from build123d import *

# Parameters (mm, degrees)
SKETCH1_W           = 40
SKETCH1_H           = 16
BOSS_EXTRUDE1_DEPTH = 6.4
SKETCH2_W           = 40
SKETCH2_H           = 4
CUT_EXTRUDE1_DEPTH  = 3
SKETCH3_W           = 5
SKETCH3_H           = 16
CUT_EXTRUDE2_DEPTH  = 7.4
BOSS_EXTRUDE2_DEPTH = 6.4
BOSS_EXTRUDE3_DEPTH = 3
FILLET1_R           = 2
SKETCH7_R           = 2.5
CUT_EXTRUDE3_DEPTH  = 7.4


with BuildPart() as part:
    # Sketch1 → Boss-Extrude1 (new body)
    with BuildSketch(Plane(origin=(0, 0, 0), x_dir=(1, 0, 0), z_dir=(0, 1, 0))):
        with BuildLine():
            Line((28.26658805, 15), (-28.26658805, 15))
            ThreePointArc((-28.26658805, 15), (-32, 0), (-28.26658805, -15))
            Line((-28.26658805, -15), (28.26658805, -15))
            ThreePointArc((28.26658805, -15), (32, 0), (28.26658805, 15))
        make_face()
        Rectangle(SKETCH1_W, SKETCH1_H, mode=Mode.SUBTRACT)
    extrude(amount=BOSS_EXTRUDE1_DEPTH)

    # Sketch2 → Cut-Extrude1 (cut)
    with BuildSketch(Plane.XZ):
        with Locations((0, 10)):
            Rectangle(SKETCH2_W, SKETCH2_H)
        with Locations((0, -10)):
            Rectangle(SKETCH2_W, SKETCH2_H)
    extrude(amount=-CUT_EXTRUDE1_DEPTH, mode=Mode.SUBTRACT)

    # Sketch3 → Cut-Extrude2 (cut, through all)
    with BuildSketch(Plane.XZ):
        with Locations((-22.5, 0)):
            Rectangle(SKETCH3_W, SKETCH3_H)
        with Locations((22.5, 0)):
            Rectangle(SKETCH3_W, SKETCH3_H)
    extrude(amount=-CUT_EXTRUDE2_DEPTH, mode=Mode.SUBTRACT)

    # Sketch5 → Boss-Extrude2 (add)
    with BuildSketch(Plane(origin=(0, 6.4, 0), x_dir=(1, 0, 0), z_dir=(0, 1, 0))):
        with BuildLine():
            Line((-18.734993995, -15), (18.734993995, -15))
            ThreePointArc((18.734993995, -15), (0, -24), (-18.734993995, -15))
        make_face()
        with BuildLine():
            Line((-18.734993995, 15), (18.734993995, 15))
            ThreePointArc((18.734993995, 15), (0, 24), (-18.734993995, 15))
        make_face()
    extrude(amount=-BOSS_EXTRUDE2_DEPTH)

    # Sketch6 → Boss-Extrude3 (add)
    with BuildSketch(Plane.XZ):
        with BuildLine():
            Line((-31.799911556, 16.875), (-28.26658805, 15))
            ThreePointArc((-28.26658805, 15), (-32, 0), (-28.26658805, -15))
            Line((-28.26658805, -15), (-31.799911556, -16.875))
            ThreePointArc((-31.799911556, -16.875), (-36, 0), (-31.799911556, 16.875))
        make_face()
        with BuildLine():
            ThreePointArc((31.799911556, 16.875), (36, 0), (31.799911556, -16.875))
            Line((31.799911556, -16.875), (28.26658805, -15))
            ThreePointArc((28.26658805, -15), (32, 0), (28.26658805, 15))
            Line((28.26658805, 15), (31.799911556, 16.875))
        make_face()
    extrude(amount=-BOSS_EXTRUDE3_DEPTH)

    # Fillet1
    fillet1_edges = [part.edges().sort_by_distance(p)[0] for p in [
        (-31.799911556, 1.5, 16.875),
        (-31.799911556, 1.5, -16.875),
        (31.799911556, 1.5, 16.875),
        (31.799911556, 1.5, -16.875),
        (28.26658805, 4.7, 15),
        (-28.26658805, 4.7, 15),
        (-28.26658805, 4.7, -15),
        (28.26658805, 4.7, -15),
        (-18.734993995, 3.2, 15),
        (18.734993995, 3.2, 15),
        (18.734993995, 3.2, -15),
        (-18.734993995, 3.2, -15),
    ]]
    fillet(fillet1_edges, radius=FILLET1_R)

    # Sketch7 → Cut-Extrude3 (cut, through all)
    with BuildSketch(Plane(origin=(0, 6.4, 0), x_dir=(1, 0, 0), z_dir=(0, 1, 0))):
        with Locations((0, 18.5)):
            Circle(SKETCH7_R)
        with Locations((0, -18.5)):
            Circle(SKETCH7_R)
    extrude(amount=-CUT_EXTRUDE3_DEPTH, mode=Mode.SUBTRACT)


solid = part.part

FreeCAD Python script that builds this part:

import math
import FreeCAD as App
import Part
import Sketcher
from FreeCAD import Vector


def edges_at(feature, points):
    """Names of the edges that pass closest to the given points."""
    edges = feature.Shape.Edges
    near = lambda p: min(range(len(edges)), key=lambda i: edges[i].distToShape(Part.Vertex(*p))[0])
    return sorted({f"Edge{near(p) + 1}" for p in points})

doc = App.newDocument("Part")
body = doc.addObject("PartDesign::Body", "Body")

sketch1 = doc.addObject("Sketcher::SketchObject", "Sketch")
body.addObject(sketch1)
sketch1.AttachmentSupport = (doc.XZ_Plane, [""])
sketch1.MapMode = "FlatFace"
sketch1.addGeometry([
    Part.LineSegment(Vector(28.266588, -15, 0), Vector(-28.266588, -15, 0)),
    Part.ArcOfCircle(Part.Circle(Vector(0, 0, 0), Vector(0, 0, 1), 32), math.radians(152.046813), math.radians(207.953187)),
    Part.LineSegment(Vector(-28.266588, 15, 0), Vector(28.266588, 15, 0)),
    Part.ArcOfCircle(Part.Circle(Vector(0, 0, 0), Vector(0, 0, 1), 32), math.radians(-27.953187), math.radians(27.953187)),
    Part.LineSegment(Vector(20, 8, 0), Vector(-20, 8, 0)),
    Part.LineSegment(Vector(-20, 8, 0), Vector(-20, -8, 0)),
    Part.LineSegment(Vector(-20, -8, 0), Vector(20, -8, 0)),
    Part.LineSegment(Vector(20, -8, 0), Vector(20, 8, 0)),
], False)
sketch1.addConstraint([
    Sketcher.Constraint("Coincident", 0, 2, 1, 2),
    Sketcher.Constraint("Coincident", 1, 1, 2, 1),
    Sketcher.Constraint("Coincident", 2, 2, 3, 2),
    Sketcher.Constraint("Coincident", 3, 1, 0, 1),
    Sketcher.Constraint("Coincident", 4, 2, 5, 1),
    Sketcher.Constraint("Coincident", 5, 2, 6, 1),
    Sketcher.Constraint("Coincident", 6, 2, 7, 1),
    Sketcher.Constraint("Coincident", 7, 2, 4, 1),
    Sketcher.Constraint("Horizontal", 0),
    Sketcher.Constraint("Horizontal", 2),
    Sketcher.Constraint("Horizontal", 4),
    Sketcher.Constraint("Vertical", 5),
    Sketcher.Constraint("Horizontal", 6),
    Sketcher.Constraint("Vertical", 7),
    Sketcher.Constraint("Coincident", 1, 3, -1, 1),
    Sketcher.Constraint("Coincident", 3, 3, -1, 1),
    Sketcher.Constraint("Equal", 1, 3),
    Sketcher.Constraint("Symmetric", 4, 2, 6, 2, -1, 1),
    Sketcher.Constraint("Vertical", 0, 2, 1, 1),
    Sketcher.Constraint("Radius", 1, 32.0),
    Sketcher.Constraint("DistanceX", 4, 2, 4, 1, 40.0),
    Sketcher.Constraint("DistanceY", 5, 2, 5, 1, 16.0),
    Sketcher.Constraint("DistanceY", 0, 2, -1, 1, 15.0),
])
pad1 = doc.addObject("PartDesign::Pad", "Pad")
body.addObject(pad1)
pad1.Profile = sketch1
pad1.Length = 6.4
pad1.Reversed = True

sketch2 = doc.addObject("Sketcher::SketchObject", "Sketch001")
body.addObject(sketch2)
sketch2.AttachmentSupport = (doc.XZ_Plane, [""])
sketch2.MapMode = "FlatFace"
sketch2.addGeometry([
    Part.LineSegment(Vector(-20, 12, 0), Vector(-20, 8, 0)),
    Part.LineSegment(Vector(-20, 8, 0), Vector(20, 8, 0)),
    Part.LineSegment(Vector(20, 8, 0), Vector(20, 12, 0)),
    Part.LineSegment(Vector(20, 12, 0), Vector(-20, 12, 0)),
    Part.LineSegment(Vector(-20, -8, 0), Vector(-20, -12, 0)),
    Part.LineSegment(Vector(-20, -12, 0), Vector(20, -12, 0)),
    Part.LineSegment(Vector(20, -12, 0), Vector(20, -8, 0)),
    Part.LineSegment(Vector(20, -8, 0), Vector(-20, -8, 0)),
], False)
sketch2.addConstraint([
    Sketcher.Constraint("Coincident", 0, 2, 1, 1),
    Sketcher.Constraint("Coincident", 1, 2, 2, 1),
    Sketcher.Constraint("Coincident", 2, 2, 3, 1),
    Sketcher.Constraint("Coincident", 3, 2, 0, 1),
    Sketcher.Constraint("Coincident", 4, 2, 5, 1),
    Sketcher.Constraint("Coincident", 5, 2, 6, 1),
    Sketcher.Constraint("Coincident", 6, 2, 7, 1),
    Sketcher.Constraint("Coincident", 7, 2, 4, 1),
    Sketcher.Constraint("Vertical", 0),
    Sketcher.Constraint("Horizontal", 1),
    Sketcher.Constraint("Vertical", 2),
    Sketcher.Constraint("Horizontal", 3),
    Sketcher.Constraint("Vertical", 4),
    Sketcher.Constraint("Horizontal", 5),
    Sketcher.Constraint("Vertical", 6),
    Sketcher.Constraint("Horizontal", 7),
    Sketcher.Constraint("Symmetric", 2, 2, 4, 2, -1, 1),
    Sketcher.Constraint("Symmetric", 0, 2, 6, 2, -1, 1),
    Sketcher.Constraint("Vertical", 3, 2, 4, 2),
    Sketcher.Constraint("DistanceX", 1, 1, 1, 2, 40.0),
    Sketcher.Constraint("DistanceY", 0, 2, 0, 1, 4.0),
    Sketcher.Constraint("DistanceY", -1, 1, 0, 2, 8.0),
])
pocket1 = doc.addObject("PartDesign::Pocket", "Pocket")
body.addObject(pocket1)
pocket1.Profile = sketch2
pocket1.Length = 3

sketch3 = doc.addObject("Sketcher::SketchObject", "Sketch002")
body.addObject(sketch3)
sketch3.AttachmentSupport = (doc.XZ_Plane, [""])
sketch3.MapMode = "FlatFace"
sketch3.addGeometry([
    Part.LineSegment(Vector(-25, 8, 0), Vector(-25, -8, 0)),
    Part.LineSegment(Vector(-25, -8, 0), Vector(-20, -8, 0)),
    Part.LineSegment(Vector(-20, -8, 0), Vector(-20, 8, 0)),
    Part.LineSegment(Vector(-20, 8, 0), Vector(-25, 8, 0)),
    Part.LineSegment(Vector(20, 8, 0), Vector(20, -8, 0)),
    Part.LineSegment(Vector(20, -8, 0), Vector(25, -8, 0)),
    Part.LineSegment(Vector(25, -8, 0), Vector(25, 8, 0)),
    Part.LineSegment(Vector(25, 8, 0), Vector(20, 8, 0)),
], False)
sketch3.addConstraint([
    Sketcher.Constraint("Coincident", 0, 2, 1, 1),
    Sketcher.Constraint("Coincident", 1, 2, 2, 1),
    Sketcher.Constraint("Coincident", 2, 2, 3, 1),
    Sketcher.Constraint("Coincident", 3, 2, 0, 1),
    Sketcher.Constraint("Coincident", 4, 2, 5, 1),
    Sketcher.Constraint("Coincident", 5, 2, 6, 1),
    Sketcher.Constraint("Coincident", 6, 2, 7, 1),
    Sketcher.Constraint("Coincident", 7, 2, 4, 1),
    Sketcher.Constraint("Vertical", 0),
    Sketcher.Constraint("Horizontal", 1),
    Sketcher.Constraint("Vertical", 2),
    Sketcher.Constraint("Horizontal", 3),
    Sketcher.Constraint("Vertical", 4),
    Sketcher.Constraint("Horizontal", 5),
    Sketcher.Constraint("Vertical", 6),
    Sketcher.Constraint("Horizontal", 7),
    Sketcher.Constraint("Symmetric", 2, 2, 4, 2, -1, 1),
    Sketcher.Constraint("Symmetric", 0, 2, 6, 2, -1, 1),
    Sketcher.Constraint("Horizontal", 1, 2, 4, 2),
    Sketcher.Constraint("DistanceX", 1, 1, 1, 2, 5.0),
    Sketcher.Constraint("DistanceY", 0, 2, 0, 1, 16.0),
    Sketcher.Constraint("DistanceX", 0, 2, -1, 1, 25.0),
])
pocket2 = doc.addObject("PartDesign::Pocket", "Pocket001")
body.addObject(pocket2)
pocket2.Profile = sketch3
pocket2.Type = "ThroughAll"

sketch4 = doc.addObject("Sketcher::SketchObject", "Sketch003")
body.addObject(sketch4)
sketch4.AttachmentSupport = (doc.XZ_Plane, [""])
sketch4.MapMode = "FlatFace"
sketch4.AttachmentOffset = App.Placement(Vector(0, 0, -6.4), App.Rotation())
sketch4.addGeometry([
    Part.LineSegment(Vector(18.734994, 15, 0), Vector(-18.734994, 15, 0)),
    Part.ArcOfCircle(Part.Circle(Vector(0, 0, 0), Vector(0, 0, 1), 24), math.radians(38.682187), math.radians(141.317813)),
    Part.LineSegment(Vector(-18.734994, -15, 0), Vector(18.734994, -15, 0)),
    Part.ArcOfCircle(Part.Circle(Vector(0, 0, 0), Vector(0, 0, 1), 24), math.radians(-141.317813), math.radians(-38.682187)),
], False)
sketch4.addConstraint([
    Sketcher.Constraint("Coincident", 0, 1, 1, 1),
    Sketcher.Constraint("Coincident", 1, 2, 0, 2),
    Sketcher.Constraint("Coincident", 2, 1, 3, 1),
    Sketcher.Constraint("Coincident", 3, 2, 2, 2),
    Sketcher.Constraint("Horizontal", 0),
    Sketcher.Constraint("Horizontal", 2),
    Sketcher.Constraint("Coincident", 1, 3, -1, 1),
    Sketcher.Constraint("Coincident", 3, 3, -1, 1),
    Sketcher.Constraint("Equal", 1, 3),
    Sketcher.Constraint("Vertical", 1, 2, 2, 1),
    Sketcher.Constraint("Radius", 1, 24.0),
    Sketcher.Constraint("DistanceY", -1, 1, 0, 1, 15.0),
])
pad2 = doc.addObject("PartDesign::Pad", "Pad001")
body.addObject(pad2)
pad2.Profile = sketch4
pad2.Length = 6.4

sketch5 = doc.addObject("Sketcher::SketchObject", "Sketch004")
body.addObject(sketch5)
sketch5.AttachmentSupport = (doc.XZ_Plane, [""])
sketch5.MapMode = "FlatFace"
sketch5.addGeometry([
    Part.LineSegment(Vector(-28.266588, 15, 0), Vector(-31.799912, 16.875, 0)),
    Part.ArcOfCircle(Part.Circle(Vector(0, 0, 0), Vector(0, 0, 1), 36), math.radians(152.046813), math.radians(207.953187)),
    Part.LineSegment(Vector(-31.799912, -16.875, 0), Vector(-28.266588, -15, 0)),
    Part.ArcOfCircle(Part.Circle(Vector(0, 0, 0), Vector(0, 0, 1), 32), math.radians(152.046813), math.radians(207.953187)),
    Part.ArcOfCircle(Part.Circle(Vector(0, 0, 0), Vector(0, 0, 1), 36), math.radians(-27.953187), math.radians(27.953187)),
    Part.LineSegment(Vector(31.799912, 16.875, 0), Vector(28.266588, 15, 0)),
    Part.ArcOfCircle(Part.Circle(Vector(0, 0, 0), Vector(0, 0, 1), 32), math.radians(-27.953187), math.radians(27.953187)),
    Part.LineSegment(Vector(28.266588, -15, 0), Vector(31.799912, -16.875, 0)),
], False)
sketch5.addConstraint([
    Sketcher.Constraint("Coincident", 0, 2, 1, 1),
    Sketcher.Constraint("Coincident", 1, 2, 2, 1),
    Sketcher.Constraint("Coincident", 2, 2, 3, 2),
    Sketcher.Constraint("Coincident", 3, 1, 0, 1),
    Sketcher.Constraint("Coincident", 4, 2, 5, 1),
    Sketcher.Constraint("Coincident", 5, 2, 6, 2),
    Sketcher.Constraint("Coincident", 6, 1, 7, 1),
    Sketcher.Constraint("Coincident", 7, 2, 4, 1),
    Sketcher.Constraint("Coincident", 1, 3, -1, 1),
    Sketcher.Constraint("Coincident", 3, 3, -1, 1),
    Sketcher.Constraint("Coincident", 4, 3, -1, 1),
    Sketcher.Constraint("Coincident", 6, 3, -1, 1),
    Sketcher.Constraint("Equal", 1, 4),
    Sketcher.Constraint("Equal", 3, 6),
    Sketcher.Constraint("Parallel", 2, 5),
    Sketcher.Constraint("Parallel", 0, 7),
    Sketcher.Constraint("Horizontal", 0, 2, 4, 2),
    Sketcher.Constraint("Horizontal", 3, 1, 5, 2),
    Sketcher.Constraint("Horizontal", 2, 2, 6, 1),
    Sketcher.Constraint("Vertical", 0, 2, 1, 2),
    Sketcher.Constraint("Radius", 1, 36.0),
    Sketcher.Constraint("Radius", 3, 32.0),
    Sketcher.Constraint("DistanceY", 2, 2, -1, 1, 15.0),
    Sketcher.Constraint("DistanceY", 1, 2, 0, 2, 33.75),
])
pad3 = doc.addObject("PartDesign::Pad", "Pad002")
body.addObject(pad3)
pad3.Profile = sketch5
pad3.Length = 3
pad3.Reversed = True
doc.recompute()

fillet = doc.addObject("PartDesign::Fillet", "Fillet")
body.addObject(fillet)
fillet.Base = (pad3, edges_at(pad3, [
    (-31.8, 1.5, 16.875),
    (-31.8, 1.5, -16.875),
    (31.8, 1.5, 16.875),
    (31.8, 1.5, -16.875),
    (28.267, 4.7, 15),
    (-28.267, 4.7, 15),
    (-28.267, 4.7, -15),
    (28.267, 4.7, -15),
    (-18.735, 3.2, 15),
    (18.735, 3.2, 15),
    (18.735, 3.2, -15),
    (-18.735, 3.2, -15),
]))
fillet.Radius = 2

sketch6 = doc.addObject("Sketcher::SketchObject", "Sketch005")
body.addObject(sketch6)
sketch6.AttachmentSupport = (doc.XZ_Plane, [""])
sketch6.MapMode = "FlatFace"
sketch6.AttachmentOffset = App.Placement(Vector(0, 0, -6.4), App.Rotation())
sketch6.addGeometry([
    Part.Circle(Vector(0, -18.5, 0), Vector(0, 0, 1), 2.5),
    Part.Circle(Vector(0, 18.5, 0), Vector(0, 0, 1), 2.5),
], False)
sketch6.addConstraint([
    Sketcher.Constraint("Equal", 0, 1),
    Sketcher.Constraint("Symmetric", 0, 3, 1, 3, -1, 1),
    Sketcher.Constraint("PointOnObject", 0, 3, -2),
    Sketcher.Constraint("Diameter", 0, 5.0),
    Sketcher.Constraint("DistanceY", 0, 3, 1, 3, 37.0),
])
pocket3 = doc.addObject("PartDesign::Pocket", "Pocket002")
body.addObject(pocket3)
pocket3.Profile = sketch6
pocket3.Type = "ThroughAll"
pocket3.Reversed = True

doc.recompute()
